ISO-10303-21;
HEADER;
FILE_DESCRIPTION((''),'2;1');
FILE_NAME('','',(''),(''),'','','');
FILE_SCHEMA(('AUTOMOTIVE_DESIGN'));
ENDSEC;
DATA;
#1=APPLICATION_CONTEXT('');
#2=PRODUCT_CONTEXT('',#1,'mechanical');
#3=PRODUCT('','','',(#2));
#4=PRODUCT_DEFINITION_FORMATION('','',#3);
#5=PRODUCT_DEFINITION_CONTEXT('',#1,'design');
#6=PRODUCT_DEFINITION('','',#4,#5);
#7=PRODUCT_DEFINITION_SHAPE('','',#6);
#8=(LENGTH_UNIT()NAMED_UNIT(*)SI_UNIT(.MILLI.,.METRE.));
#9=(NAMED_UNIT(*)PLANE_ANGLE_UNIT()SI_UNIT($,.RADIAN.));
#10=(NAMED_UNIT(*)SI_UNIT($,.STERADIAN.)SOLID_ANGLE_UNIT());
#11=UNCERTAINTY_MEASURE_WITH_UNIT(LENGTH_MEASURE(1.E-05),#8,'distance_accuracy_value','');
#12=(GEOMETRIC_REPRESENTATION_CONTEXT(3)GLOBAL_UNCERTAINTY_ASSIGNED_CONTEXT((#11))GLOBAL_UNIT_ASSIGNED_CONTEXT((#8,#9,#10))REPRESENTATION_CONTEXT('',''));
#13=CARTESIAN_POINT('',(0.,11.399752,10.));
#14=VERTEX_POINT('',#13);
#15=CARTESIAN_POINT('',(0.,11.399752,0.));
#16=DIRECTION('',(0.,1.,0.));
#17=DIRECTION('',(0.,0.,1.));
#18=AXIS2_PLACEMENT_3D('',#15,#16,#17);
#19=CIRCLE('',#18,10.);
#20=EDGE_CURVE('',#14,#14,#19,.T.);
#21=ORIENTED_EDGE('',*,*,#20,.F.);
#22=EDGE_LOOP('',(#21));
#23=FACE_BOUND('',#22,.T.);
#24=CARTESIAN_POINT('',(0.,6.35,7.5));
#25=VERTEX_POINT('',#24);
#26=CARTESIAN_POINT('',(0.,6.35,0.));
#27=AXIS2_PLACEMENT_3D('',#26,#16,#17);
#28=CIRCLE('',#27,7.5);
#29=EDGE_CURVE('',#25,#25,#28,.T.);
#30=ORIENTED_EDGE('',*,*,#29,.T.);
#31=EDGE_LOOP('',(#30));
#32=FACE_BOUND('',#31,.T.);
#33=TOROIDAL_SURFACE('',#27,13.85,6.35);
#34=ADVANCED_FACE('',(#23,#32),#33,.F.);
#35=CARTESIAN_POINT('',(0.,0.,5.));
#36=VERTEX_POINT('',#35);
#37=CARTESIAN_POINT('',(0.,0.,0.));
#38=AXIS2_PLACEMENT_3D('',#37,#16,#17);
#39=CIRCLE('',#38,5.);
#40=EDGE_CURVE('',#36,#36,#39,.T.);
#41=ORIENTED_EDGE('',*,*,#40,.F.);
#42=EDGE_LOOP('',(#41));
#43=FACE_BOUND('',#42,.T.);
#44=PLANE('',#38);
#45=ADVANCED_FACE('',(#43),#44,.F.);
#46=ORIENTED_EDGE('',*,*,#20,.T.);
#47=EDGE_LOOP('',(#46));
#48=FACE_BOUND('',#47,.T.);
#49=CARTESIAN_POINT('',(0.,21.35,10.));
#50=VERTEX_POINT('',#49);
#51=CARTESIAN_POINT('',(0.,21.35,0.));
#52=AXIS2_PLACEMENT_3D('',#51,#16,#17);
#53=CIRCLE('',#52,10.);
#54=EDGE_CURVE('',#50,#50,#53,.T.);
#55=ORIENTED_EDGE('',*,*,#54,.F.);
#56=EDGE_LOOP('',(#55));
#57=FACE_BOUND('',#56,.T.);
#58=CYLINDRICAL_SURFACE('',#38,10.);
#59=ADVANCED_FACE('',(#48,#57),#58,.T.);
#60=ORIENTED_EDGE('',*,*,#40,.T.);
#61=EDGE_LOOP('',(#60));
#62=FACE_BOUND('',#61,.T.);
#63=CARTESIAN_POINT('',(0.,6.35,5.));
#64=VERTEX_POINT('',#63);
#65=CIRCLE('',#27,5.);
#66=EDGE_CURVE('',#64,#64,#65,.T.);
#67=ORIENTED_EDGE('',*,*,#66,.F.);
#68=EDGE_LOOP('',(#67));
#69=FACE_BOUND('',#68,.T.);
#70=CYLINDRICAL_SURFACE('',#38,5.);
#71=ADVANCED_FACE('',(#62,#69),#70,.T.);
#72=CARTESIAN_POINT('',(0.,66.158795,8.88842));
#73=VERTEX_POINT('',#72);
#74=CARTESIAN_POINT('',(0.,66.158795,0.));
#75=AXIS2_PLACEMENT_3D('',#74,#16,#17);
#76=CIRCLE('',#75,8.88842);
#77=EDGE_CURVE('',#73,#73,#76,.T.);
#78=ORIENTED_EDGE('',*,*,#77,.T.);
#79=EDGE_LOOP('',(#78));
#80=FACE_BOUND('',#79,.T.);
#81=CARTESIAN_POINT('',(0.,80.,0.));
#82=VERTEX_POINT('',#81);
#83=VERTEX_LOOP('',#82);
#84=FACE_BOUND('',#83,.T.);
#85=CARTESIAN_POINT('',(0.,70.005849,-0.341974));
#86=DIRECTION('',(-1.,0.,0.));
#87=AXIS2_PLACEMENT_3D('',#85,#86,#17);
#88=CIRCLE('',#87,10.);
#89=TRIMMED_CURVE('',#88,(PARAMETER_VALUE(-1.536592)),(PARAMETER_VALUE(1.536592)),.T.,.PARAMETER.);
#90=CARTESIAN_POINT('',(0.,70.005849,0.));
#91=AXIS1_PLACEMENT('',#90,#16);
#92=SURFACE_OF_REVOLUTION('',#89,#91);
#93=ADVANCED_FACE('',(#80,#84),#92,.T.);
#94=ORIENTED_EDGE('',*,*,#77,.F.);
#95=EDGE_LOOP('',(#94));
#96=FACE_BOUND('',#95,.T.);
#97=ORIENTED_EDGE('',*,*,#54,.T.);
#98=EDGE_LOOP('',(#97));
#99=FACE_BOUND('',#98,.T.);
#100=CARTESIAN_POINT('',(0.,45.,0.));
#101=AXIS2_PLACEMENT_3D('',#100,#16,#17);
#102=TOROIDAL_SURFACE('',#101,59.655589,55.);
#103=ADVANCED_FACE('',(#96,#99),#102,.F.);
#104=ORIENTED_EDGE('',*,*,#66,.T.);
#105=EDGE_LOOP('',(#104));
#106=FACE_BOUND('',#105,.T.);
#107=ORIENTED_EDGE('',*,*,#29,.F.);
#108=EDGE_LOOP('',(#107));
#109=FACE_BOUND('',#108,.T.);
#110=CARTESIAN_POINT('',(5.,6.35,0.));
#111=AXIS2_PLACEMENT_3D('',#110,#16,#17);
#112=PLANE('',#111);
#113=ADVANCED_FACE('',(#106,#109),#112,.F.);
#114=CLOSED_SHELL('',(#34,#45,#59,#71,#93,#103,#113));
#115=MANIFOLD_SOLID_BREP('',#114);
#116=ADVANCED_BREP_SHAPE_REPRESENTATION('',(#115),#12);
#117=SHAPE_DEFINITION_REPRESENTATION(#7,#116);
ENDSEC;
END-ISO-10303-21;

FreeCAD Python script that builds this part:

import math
import FreeCAD as App
import Part
import Sketcher
from FreeCAD import Vector

doc = App.newDocument("Part")
body = doc.addObject("PartDesign::Body", "Body")

sketch1 = body.newObject("Sketcher::SketchObject", "Sketch")
sketch1.AttachmentSupport = (doc.getObject("XY_Plane"), [""])
sketch1.MapMode = "FlatFace"
sketch1.addGeometry([
    Part.LineSegment(Vector(0, 0, 0), Vector(5, 0, 0)),
    Part.LineSegment(Vector(5, 0, 0), Vector(5, 6.3, 0)),
    Part.LineSegment(Vector(5, 6.3, 0), Vector(7.5, 6.3, 0)),
    Part.ArcOfCircle(Part.Circle(Vector(13.9, 6.3, 0), Vector(0, 0, 1), 6.4), math.radians(127), math.radians(180)),
    Part.LineSegment(Vector(10, 11.4, 0), Vector(10, 21.4, 0)),
    Part.ArcOfCircle(Part.Circle(Vector(59.7, 45, 0), Vector(0, 0, 1), 55), math.radians(157), math.radians(205)),
    Part.ArcOfCircle(Part.Circle(Vector(-0.3, 70, 0), Vector(0, 0, 1), 10), math.radians(-23), math.radians(88)),
    Part.LineSegment(Vector(0, 80, 0), Vector(0, 0, 0)),
], False)
sketch1.addConstraint([
    Sketcher.Constraint("Coincident", 0, 2, 1, 1),
    Sketcher.Constraint("Coincident", 1, 2, 2, 1),
    Sketcher.Constraint("Coincident", 2, 2, 3, 2),
    Sketcher.Constraint("Coincident", 3, 1, 4, 1),
    Sketcher.Constraint("Coincident", 4, 2, 5, 2),
    Sketcher.Constraint("Tangent", 5, 1, 6, 1),
    Sketcher.Constraint("Coincident", 6, 2, 7, 1),
    Sketcher.Constraint("Coincident", 7, 2, 0, 1),
    Sketcher.Constraint("Horizontal", 0),
    Sketcher.Constraint("Vertical", 1),
    Sketcher.Constraint("Horizontal", 2),
    Sketcher.Constraint("Vertical", 4),
    Sketcher.Constraint("Vertical", 7),
    Sketcher.Constraint("Coincident", 7, 2, -1, 1),
    Sketcher.Constraint("Horizontal", 3, 3, 1, 2),
    Sketcher.Constraint("Radius", 5, 55.0),
    Sketcher.Constraint("Radius", 6, 10.0),
    Sketcher.Constraint("DistanceX", 0, 1, 0, 2, 5.0),
    Sketcher.Constraint("DistanceY", 7, 2, 7, 1, 80.0),
    Sketcher.Constraint("Radius", 3, 6.35),
    Sketcher.Constraint("DistanceX", 2, 1, 2, 2, 2.5),
    Sketcher.Constraint("DistanceY", -1, 1, 5, 3, 45.0),
    Sketcher.Constraint("DistanceX", -1, 1, 3, 1, 10.0),
    Sketcher.Constraint("DistanceY", 2, 2, 4, 2, 15.0),
    Sketcher.Constraint("DistanceY", 1, 1, 1, 2, 6.35),
])
revolution = body.newObject("PartDesign::Revolution", "Revolution")
revolution.Profile = sketch1
revolution.ReferenceAxis = (sketch1, ["V_Axis"])
revolution.Angle = 360

doc.recompute()
